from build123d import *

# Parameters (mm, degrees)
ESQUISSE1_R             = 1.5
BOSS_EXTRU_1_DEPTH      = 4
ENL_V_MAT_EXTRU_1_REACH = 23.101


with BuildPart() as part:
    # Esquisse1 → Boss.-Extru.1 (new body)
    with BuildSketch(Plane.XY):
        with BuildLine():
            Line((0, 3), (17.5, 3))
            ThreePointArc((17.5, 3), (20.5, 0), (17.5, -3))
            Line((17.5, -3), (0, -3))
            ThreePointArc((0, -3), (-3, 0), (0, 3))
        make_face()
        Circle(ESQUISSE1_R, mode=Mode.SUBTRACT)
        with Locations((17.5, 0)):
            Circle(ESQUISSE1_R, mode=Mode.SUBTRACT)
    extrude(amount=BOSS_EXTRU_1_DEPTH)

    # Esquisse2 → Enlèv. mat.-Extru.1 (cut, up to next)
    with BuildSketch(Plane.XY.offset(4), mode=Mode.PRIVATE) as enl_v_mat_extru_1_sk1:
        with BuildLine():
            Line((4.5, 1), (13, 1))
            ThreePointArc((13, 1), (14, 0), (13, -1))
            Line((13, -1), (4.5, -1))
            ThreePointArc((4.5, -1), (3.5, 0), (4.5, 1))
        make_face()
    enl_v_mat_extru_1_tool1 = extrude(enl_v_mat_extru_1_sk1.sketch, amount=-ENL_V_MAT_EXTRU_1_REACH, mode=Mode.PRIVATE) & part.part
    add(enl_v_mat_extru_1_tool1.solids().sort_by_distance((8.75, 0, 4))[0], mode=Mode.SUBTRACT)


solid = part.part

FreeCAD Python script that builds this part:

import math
import FreeCAD as App
import Part
import Sketcher

doc = App.newDocument("Part")
body = doc.addObject("PartDesign::Body", "Body")

# Sketch on XY plane
sketch1 = doc.addObject("Sketcher::SketchObject", "Sketch")
body.addObject(sketch1)
sketch1.AttachmentSupport = (doc.XY_Plane, [""])
sketch1.MapMode = "FlatFace"
sketch1.addGeometry([
    Part.LineSegment(App.Vector(17.5, 3, 0), App.Vector(0, 3, 0)),  # 0
    Part.ArcOfCircle(Part.Circle(App.Vector(0, 0, 0), App.Vector(0, 0, 1), 3), math.radians(90), math.radians(270)),  # 1
    Part.LineSegment(App.Vector(0, -3, 0), App.Vector(17.5, -3, 0)),  # 2
    Part.ArcOfCircle(Part.Circle(App.Vector(17.5, 0, 0), App.Vector(0, 0, 1), 3), math.radians(-90), math.radians(90)),  # 3
    Part.Circle(App.Vector(17.5, 0, 0), App.Vector(0, 0, 1), 1.5),  # 4
    Part.Circle(App.Vector(0, 0, 0), App.Vector(0, 0, 1), 1.5),  # 5
], False)
sketch1.addConstraint([
    Sketcher.Constraint("Tangent", 0, 2, 1, 1),
    Sketcher.Constraint("Tangent", 1, 2, 2, 1),
    Sketcher.Constraint("Tangent", 2, 2, 3, 1),
    Sketcher.Constraint("Tangent", 3, 2, 0, 1),
    Sketcher.Constraint("Horizontal", 0),
    Sketcher.Constraint("Horizontal", 2),
    Sketcher.Constraint("Coincident", 1, 3, -1, 1),
    Sketcher.Constraint("Coincident", 5, 3, -1, 1),
    Sketcher.Constraint("Coincident", 4, 3, 3, 3),
    Sketcher.Constraint("Equal", 4, 5),
    Sketcher.Constraint("Diameter", 4, 3.0),
    Sketcher.Constraint("Radius", 1, 3.0),
    Sketcher.Constraint("DistanceX", 0, 2, 0, 1, 17.5),
])
pad1 = doc.addObject("PartDesign::Pad", "Pad")
body.addObject(pad1)
pad1.Profile = sketch1
pad1.Length = 4

# Sketch on XY plane
sketch2 = doc.addObject("Sketcher::SketchObject", "Sketch001")
body.addObject(sketch2)
sketch2.AttachmentSupport = (doc.XY_Plane, [""])
sketch2.MapMode = "FlatFace"
sketch2.AttachmentOffset = App.Placement(App.Vector(0, 0, 4), App.Rotation())
sketch2.addGeometry([
    Part.LineSegment(App.Vector(13, 1, 0), App.Vector(4.5, 1, 0)),
    Part.ArcOfCircle(Part.Circle(App.Vector(4.5, 0, 0), App.Vector(0, 0, 1), 1), math.radians(90), math.radians(270)),
    Part.LineSegment(App.Vector(4.5, -1, 0), App.Vector(13, -1, 0)),
    Part.ArcOfCircle(Part.Circle(App.Vector(13, 0, 0), App.Vector(0, 0, 1), 1), math.radians(-90), math.radians(90)),
], False)
sketch2.addConstraint([
    Sketcher.Constraint("Tangent", 0, 2, 1, 1),
    Sketcher.Constraint("Tangent", 1, 2, 2, 1),
    Sketcher.Constraint("Tangent", 2, 2, 3, 1),
    Sketcher.Constraint("Tangent", 3, 2, 0, 1),
    Sketcher.Constraint("Horizontal", 0),
    Sketcher.Constraint("Horizontal", 2),
    Sketcher.Constraint("PointOnObject", 1, 3, -1),
    Sketcher.Constraint("Radius", 1, 1.0),
    Sketcher.Constraint("DistanceX", 0, 2, 0, 1, 8.5),
    Sketcher.Constraint("DistanceX", -1, 1, 3, 3, 13.0),
])
pocket1 = doc.addObject("PartDesign::Pocket", "Pocket")
body.addObject(pocket1)
pocket1.Profile = sketch2
pocket1.Type = "UpToFirst"

doc.recompute()
